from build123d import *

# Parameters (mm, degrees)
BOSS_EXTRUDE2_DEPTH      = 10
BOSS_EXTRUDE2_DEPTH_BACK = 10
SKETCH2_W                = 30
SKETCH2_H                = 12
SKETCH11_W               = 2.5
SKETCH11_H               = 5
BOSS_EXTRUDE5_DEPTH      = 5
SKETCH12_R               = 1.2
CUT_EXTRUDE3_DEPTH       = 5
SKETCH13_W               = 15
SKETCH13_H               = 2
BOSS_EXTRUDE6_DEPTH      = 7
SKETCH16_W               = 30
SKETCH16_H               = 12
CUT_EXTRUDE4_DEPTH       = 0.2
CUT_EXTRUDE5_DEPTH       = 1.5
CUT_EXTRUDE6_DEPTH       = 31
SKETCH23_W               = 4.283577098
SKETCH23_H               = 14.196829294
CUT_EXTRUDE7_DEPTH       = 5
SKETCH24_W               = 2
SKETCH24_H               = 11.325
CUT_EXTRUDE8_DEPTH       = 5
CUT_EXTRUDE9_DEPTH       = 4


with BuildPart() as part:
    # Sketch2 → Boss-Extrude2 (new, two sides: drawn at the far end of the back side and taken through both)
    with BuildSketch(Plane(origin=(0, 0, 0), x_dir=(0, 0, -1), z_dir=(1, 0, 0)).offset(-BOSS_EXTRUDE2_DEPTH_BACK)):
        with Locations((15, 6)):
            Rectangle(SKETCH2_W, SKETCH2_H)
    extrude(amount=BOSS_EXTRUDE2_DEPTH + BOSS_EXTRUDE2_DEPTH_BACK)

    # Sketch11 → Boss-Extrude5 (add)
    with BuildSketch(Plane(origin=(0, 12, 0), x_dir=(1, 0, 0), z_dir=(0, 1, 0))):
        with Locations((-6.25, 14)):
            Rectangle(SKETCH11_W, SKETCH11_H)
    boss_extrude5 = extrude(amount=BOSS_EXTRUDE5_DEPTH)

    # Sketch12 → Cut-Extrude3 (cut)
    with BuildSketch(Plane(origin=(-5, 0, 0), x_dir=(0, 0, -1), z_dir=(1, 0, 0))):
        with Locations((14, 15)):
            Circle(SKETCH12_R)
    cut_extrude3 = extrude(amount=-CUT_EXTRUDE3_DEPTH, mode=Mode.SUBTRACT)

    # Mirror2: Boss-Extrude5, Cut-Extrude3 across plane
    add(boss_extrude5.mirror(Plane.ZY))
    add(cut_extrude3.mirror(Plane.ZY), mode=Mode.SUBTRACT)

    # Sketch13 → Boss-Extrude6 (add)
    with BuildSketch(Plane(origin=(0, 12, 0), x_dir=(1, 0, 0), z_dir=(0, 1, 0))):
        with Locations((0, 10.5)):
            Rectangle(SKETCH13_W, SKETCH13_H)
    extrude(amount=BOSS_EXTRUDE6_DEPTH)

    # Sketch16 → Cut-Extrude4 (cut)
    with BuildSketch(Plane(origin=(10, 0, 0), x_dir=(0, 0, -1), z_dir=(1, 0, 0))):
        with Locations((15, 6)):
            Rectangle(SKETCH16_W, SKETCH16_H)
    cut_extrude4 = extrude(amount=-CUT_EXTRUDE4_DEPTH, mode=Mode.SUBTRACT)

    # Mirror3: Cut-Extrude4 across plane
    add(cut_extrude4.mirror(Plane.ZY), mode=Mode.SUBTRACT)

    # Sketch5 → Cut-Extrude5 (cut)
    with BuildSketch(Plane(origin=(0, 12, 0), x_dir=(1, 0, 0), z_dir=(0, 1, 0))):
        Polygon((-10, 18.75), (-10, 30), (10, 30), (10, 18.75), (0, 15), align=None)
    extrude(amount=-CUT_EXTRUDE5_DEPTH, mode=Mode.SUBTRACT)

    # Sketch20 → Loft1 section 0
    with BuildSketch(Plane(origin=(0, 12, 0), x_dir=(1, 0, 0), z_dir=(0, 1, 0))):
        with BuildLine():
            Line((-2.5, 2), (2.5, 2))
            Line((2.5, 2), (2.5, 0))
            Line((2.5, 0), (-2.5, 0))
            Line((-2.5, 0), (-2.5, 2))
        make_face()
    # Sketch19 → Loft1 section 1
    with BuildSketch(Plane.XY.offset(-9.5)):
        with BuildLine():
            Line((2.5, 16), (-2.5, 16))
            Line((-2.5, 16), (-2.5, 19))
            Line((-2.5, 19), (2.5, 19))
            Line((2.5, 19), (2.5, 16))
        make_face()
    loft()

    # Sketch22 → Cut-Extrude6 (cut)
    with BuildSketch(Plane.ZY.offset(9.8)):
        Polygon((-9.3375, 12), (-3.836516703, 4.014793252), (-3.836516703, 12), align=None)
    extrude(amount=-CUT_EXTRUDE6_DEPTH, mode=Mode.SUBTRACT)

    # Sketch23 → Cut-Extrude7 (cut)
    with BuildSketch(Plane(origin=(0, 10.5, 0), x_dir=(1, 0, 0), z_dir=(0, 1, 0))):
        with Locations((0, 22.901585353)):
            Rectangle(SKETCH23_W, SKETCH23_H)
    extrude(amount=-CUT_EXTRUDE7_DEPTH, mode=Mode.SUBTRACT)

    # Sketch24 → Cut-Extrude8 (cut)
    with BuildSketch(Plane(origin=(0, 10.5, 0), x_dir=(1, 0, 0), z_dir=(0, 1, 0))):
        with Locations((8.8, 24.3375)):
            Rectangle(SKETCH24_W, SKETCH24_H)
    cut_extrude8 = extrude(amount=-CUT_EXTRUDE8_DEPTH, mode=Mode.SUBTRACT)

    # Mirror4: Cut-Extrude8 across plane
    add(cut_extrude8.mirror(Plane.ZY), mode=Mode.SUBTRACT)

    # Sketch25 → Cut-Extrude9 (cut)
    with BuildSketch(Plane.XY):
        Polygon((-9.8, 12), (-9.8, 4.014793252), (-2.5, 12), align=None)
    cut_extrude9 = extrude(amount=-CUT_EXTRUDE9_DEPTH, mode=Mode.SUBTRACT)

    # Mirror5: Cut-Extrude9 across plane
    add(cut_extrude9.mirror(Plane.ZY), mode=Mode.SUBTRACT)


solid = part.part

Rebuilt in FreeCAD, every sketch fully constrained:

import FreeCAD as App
import Part
import Sketcher
Q = App.Units.Quantity

doc = App.newDocument("Part")
body = doc.addObject("PartDesign::Body", "Body")

# Sketch on YZ plane
sketch1 = body.newObject("Sketcher::SketchObject", "Sketch")
sketch1.AttachmentSupport = (doc.getObject("YZ_Plane"), [""])
sketch1.MapMode = "FlatFace"
sketch1.addGeometry(Part.LineSegment(App.Vector(12, 0, 0), App.Vector(0, 0, 0)), False)
sketch1.addGeometry(Part.LineSegment(App.Vector(0, 0, 0), App.Vector(0, -30, 0)), False)
sketch1.addGeometry(Part.LineSegment(App.Vector(0, -30, 0), App.Vector(12, -30, 0)), False)
sketch1.addGeometry(Part.LineSegment(App.Vector(12, -30, 0), App.Vector(12, 0, 0)), False)
sketch1.addConstraint(Sketcher.Constraint("Coincident", 0, 2, 1, 1))
sketch1.addConstraint(Sketcher.Constraint("Coincident", 1, 2, 2, 1))
sketch1.addConstraint(Sketcher.Constraint("Coincident", 2, 2, 3, 1))
sketch1.addConstraint(Sketcher.Constraint("Coincident", 3, 2, 0, 1))
sketch1.addConstraint(Sketcher.Constraint("Horizontal", 0))
sketch1.addConstraint(Sketcher.Constraint("Vertical", 1))
sketch1.addConstraint(Sketcher.Constraint("Horizontal", 2))
sketch1.addConstraint(Sketcher.Constraint("Vertical", 3))
sketch1.addConstraint(Sketcher.Constraint("Coincident", 0, 2, -1, 1))
sketch1.addConstraint(Sketcher.Constraint("DistanceX", 0, 2, 0, 1, Q("12 mm")))
sketch1.addConstraint(Sketcher.Constraint("DistanceY", 1, 2, 1, 1, Q("30 mm")))
pad1 = body.newObject("PartDesign::Pad", "Pad")
pad1.Profile = sketch1
pad1.Type = "TwoLengths"
pad1.Length = 10
pad1.Length2 = 10

# Sketch on XZ plane
sketch2 = body.newObject("Sketcher::SketchObject", "Sketch001")
sketch2.AttachmentSupport = (doc.getObject("XZ_Plane"), [""])
sketch2.MapMode = "FlatFace"
sketch2.AttachmentOffset = App.Placement(App.Vector(0, 0, -12), App.Rotation())
sketch2.addGeometry(Part.LineSegment(App.Vector(-7.5, -16.5, 0), App.Vector(-7.5, -11.5, 0)), False)
sketch2.addGeometry(Part.LineSegment(App.Vector(-7.5, -11.5, 0), App.Vector(-5, -11.5, 0)), False)
sketch2.addGeometry(Part.LineSegment(App.Vector(-5, -11.5, 0), App.Vector(-5, -16.5, 0)), False)
sketch2.addGeometry(Part.LineSegment(App.Vector(-5, -16.5, 0), App.Vector(-7.5, -16.5, 0)), False)
sketch2.addConstraint(Sketcher.Constraint("Coincident", 0, 2, 1, 1))
sketch2.addConstraint(Sketcher.Constraint("Coincident", 1, 2, 2, 1))
sketch2.addConstraint(Sketcher.Constraint("Coincident", 2, 2, 3, 1))
sketch2.addConstraint(Sketcher.Constraint("Coincident", 3, 2, 0, 1))
sketch2.addConstraint(Sketcher.Constraint("Vertical", 0))
sketch2.addConstraint(Sketcher.Constraint("Horizontal", 1))
sketch2.addConstraint(Sketcher.Constraint("Vertical", 2))
sketch2.addConstraint(Sketcher.Constraint("Horizontal", 3))
sketch2.addConstraint(Sketcher.Constraint("DistanceY", 0, 1, 0, 2, Q("5 mm")))
sketch2.addConstraint(Sketcher.Constraint("DistanceX", 1, 1, 1, 2, Q("2.5 mm")))
sketch2.addConstraint(Sketcher.Constraint("DistanceX", 1, 2, -1, 1, Q("5 mm")))
sketch2.addConstraint(Sketcher.Constraint("DistanceY", 0, 2, -1, 1, Q("11.5 mm")))
pad2 = body.newObject("PartDesign::Pad", "Pad001")
pad2.Profile = sketch2
pad2.Length = 5
pad2.Reversed = True

# Sketch on YZ plane
sketch3 = body.newObject("Sketcher::SketchObject", "Sketch002")
sketch3.AttachmentSupport = (doc.getObject("YZ_Plane"), [""])
sketch3.MapMode = "FlatFace"
sketch3.AttachmentOffset = App.Placement(App.Vector(0, 0, -5), App.Rotation())
sketch3.addGeometry(Part.Circle(App.Vector(15, -14, 0), App.Vector(0, 0, 1), 1.2), False)
sketch3.addConstraint(Sketcher.Constraint("Diameter", 0, Q("2.4 mm")))
sketch3.addConstraint(Sketcher.Constraint("DistanceX", -1, 1, 0, 3, Q("15 mm")))
sketch3.addConstraint(Sketcher.Constraint("DistanceY", 0, 3, -1, 1, Q("14 mm")))
pocket1 = body.newObject("PartDesign::Pocket", "Pocket")
pocket1.Profile = sketch3
pocket1.Length = 5
doc.recompute()

mirrored = body.newObject("PartDesign::Mirrored", "Mirrored")
mirrored.Originals = [pad2, pocket1]
mirrored.MirrorPlane = (doc.getObject("YZ_Plane"), [""])
body.Tip = mirrored

# Sketch on XZ plane
sketch4 = body.newObject("Sketcher::SketchObject", "Sketch003")
sketch4.AttachmentSupport = (doc.getObject("XZ_Plane"), [""])
sketch4.MapMode = "FlatFace"
sketch4.AttachmentOffset = App.Placement(App.Vector(0, 0, -12), App.Rotation())
sketch4.addGeometry(Part.LineSegment(App.Vector(-7.5, -11.5, 0), App.Vector(-7.5, -9.5, 0)), False)
sketch4.addGeometry(Part.LineSegment(App.Vector(-7.5, -9.5, 0), App.Vector(7.5, -9.5, 0)), False)
sketch4.addGeometry(Part.LineSegment(App.Vector(7.5, -9.5, 0), App.Vector(7.5, -11.5, 0)), False)
sketch4.addGeometry(Part.LineSegment(App.Vector(7.5, -11.5, 0), App.Vector(-7.5, -11.5, 0)), False)
sketch4.addConstraint(Sketcher.Constraint("Coincident", 0, 2, 1, 1))
sketch4.addConstraint(Sketcher.Constraint("Coincident", 1, 2, 2, 1))
sketch4.addConstraint(Sketcher.Constraint("Coincident", 2, 2, 3, 1))
sketch4.addConstraint(Sketcher.Constraint("Coincident", 3, 2, 0, 1))
sketch4.addConstraint(Sketcher.Constraint("Vertical", 0))
sketch4.addConstraint(Sketcher.Constraint("Horizontal", 1))
sketch4.addConstraint(Sketcher.Constraint("Vertical", 2))
sketch4.addConstraint(Sketcher.Constraint("Horizontal", 3))
sketch4.addConstraint(Sketcher.Constraint("DistanceX", 1, 1, 1, 2, Q("15 mm")))
sketch4.addConstraint(Sketcher.Constraint("DistanceY", 0, 1, 0, 2, Q("2 mm")))
sketch4.addConstraint(Sketcher.Constraint("DistanceX", 0, 2, -1, 1, Q("7.5 mm")))
sketch4.addConstraint(Sketcher.Constraint("DistanceY", 0, 2, -1, 1, Q("9.5 mm")))
pad3 = body.newObject("PartDesign::Pad", "Pad002")
pad3.Profile = sketch4
pad3.Length = 7
pad3.Reversed = True

# Sketch on YZ plane
sketch5 = body.newObject("Sketcher::SketchObject", "Sketch004")
sketch5.AttachmentSupport = (doc.getObject("YZ_Plane"), [""])
sketch5.MapMode = "FlatFace"
sketch5.AttachmentOffset = App.Placement(App.Vector(0, 0, 10), App.Rotation())
sketch5.addGeometry(Part.LineSegment(App.Vector(12, 0, 0), App.Vector(0, 0, 0)), False)
sketch5.addGeometry(Part.LineSegment(App.Vector(0, 0, 0), App.Vector(0, -30, 0)), False)
sketch5.addGeometry(Part.LineSegment(App.Vector(0, -30, 0), App.Vector(12, -30, 0)), False)
sketch5.addGeometry(Part.LineSegment(App.Vector(12, -30, 0), App.Vector(12, 0, 0)), False)
sketch5.addConstraint(Sketcher.Constraint("Coincident", 0, 2, 1, 1))
sketch5.addConstraint(Sketcher.Constraint("Coincident", 1, 2, 2, 1))
sketch5.addConstraint(Sketcher.Constraint("Coincident", 2, 2, 3, 1))
sketch5.addConstraint(Sketcher.Constraint("Coincident", 3, 2, 0, 1))
sketch5.addConstraint(Sketcher.Constraint("Horizontal", 0))
sketch5.addConstraint(Sketcher.Constraint("Vertical", 1))
sketch5.addConstraint(Sketcher.Constraint("Horizontal", 2))
sketch5.addConstraint(Sketcher.Constraint("Vertical", 3))
sketch5.addConstraint(Sketcher.Constraint("Coincident", 0, 2, -1, 1))
sketch5.addConstraint(Sketcher.Constraint("DistanceX", 0, 2, 0, 1, Q("12 mm")))
sketch5.addConstraint(Sketcher.Constraint("DistanceY", 1, 2, 1, 1, Q("30 mm")))
pocket2 = body.newObject("PartDesign::Pocket", "Pocket001")
pocket2.Profile = sketch5
pocket2.Length = 0.2
doc.recompute()

mirrored2 = body.newObject("PartDesign::Mirrored", "Mirrored001")
mirrored2.Originals = [pocket2]
mirrored2.MirrorPlane = (doc.getObject("YZ_Plane"), [""])
body.Tip = mirrored2

# Sketch on XZ plane
sketch6 = body.newObject("Sketcher::SketchObject", "Sketch005")
sketch6.AttachmentSupport = (doc.getObject("XZ_Plane"), [""])
sketch6.MapMode = "FlatFace"
sketch6.AttachmentOffset = App.Placement(App.Vector(0, 0, -12), App.Rotation())
sketch6.addGeometry(Part.LineSegment(App.Vector(-10, -30, 0), App.Vector(-10, -18.75, 0)), False)
sketch6.addGeometry(Part.LineSegment(App.Vector(-10, -18.75, 0), App.Vector(0, -15, 0)), False)
sketch6.addGeometry(Part.LineSegment(App.Vector(0, -15, 0), App.Vector(10, -18.75, 0)), False)
sketch6.addGeometry(Part.LineSegment(App.Vector(10, -18.75, 0), App.Vector(10, -30, 0)), False)
sketch6.addGeometry(Part.LineSegment(App.Vector(10, -30, 0), App.Vector(-10, -30, 0)), False)
sketch6.addConstraint(Sketcher.Constraint("Coincident", 0, 2, 1, 1))
sketch6.addConstraint(Sketcher.Constraint("Coincident", 1, 2, 2, 1))
sketch6.addConstraint(Sketcher.Constraint("Coincident", 2, 2, 3, 1))
sketch6.addConstraint(Sketcher.Constraint("Coincident", 3, 2, 4, 1))
sketch6.addConstraint(Sketcher.Constraint("Coincident", 4, 2, 0, 1))
sketch6.addConstraint(Sketcher.Constraint("Vertical", 0))
sketch6.addConstraint(Sketcher.Constraint("Vertical", 3))
sketch6.addConstraint(Sketcher.Constraint("Horizontal", 4))
sketch6.addConstraint(Sketcher.Constraint("Symmetric", 0, 2, 2, 2, -2))
sketch6.addConstraint(Sketcher.Constraint("PointOnObject", 1, 2, -2))
sketch6.addConstraint(Sketcher.Constraint("DistanceX", 4, 2, 4, 1, Q("20 mm")))
sketch6.addConstraint(Sketcher.Constraint("DistanceY", 1, 2, -1, 1, Q("15 mm")))
sketch6.addConstraint(Sketcher.Constraint("DistanceY", 3, 2, -1, 1, Q("30 mm")))
sketch6.addConstraint(Sketcher.Constraint("DistanceY", 0, 1, 0, 2, Q("11.25 mm")))
pocket3 = body.newObject("PartDesign::Pocket", "Pocket002")
pocket3.Profile = sketch6
pocket3.Length = 1.5
pocket3.Reversed = True

# Sketch on XZ plane
sketch7 = body.newObject("Sketcher::SketchObject", "Sketch006")
sketch7.AttachmentSupport = (doc.getObject("XZ_Plane"), [""])
sketch7.MapMode = "FlatFace"
sketch7.AttachmentOffset = App.Placement(App.Vector(0, 0, -12), App.Rotation())
sketch7.addGeometry(Part.LineSegment(App.Vector(2.5, -2, 0), App.Vector(-2.5, -2, 0)), False)
sketch7.addGeometry(Part.LineSegment(App.Vector(-2.5, -2, 0), App.Vector(-2.5, 0, 0)), False)
sketch7.addGeometry(Part.LineSegment(App.Vector(-2.5, 0, 0), App.Vector(2.5, 0, 0)), False)
sketch7.addGeometry(Part.LineSegment(App.Vector(2.5, 0, 0), App.Vector(2.5, -2, 0)), False)
sketch7.addConstraint(Sketcher.Constraint("Coincident", 0, 2, 1, 1))
sketch7.addConstraint(Sketcher.Constraint("Coincident", 1, 2, 2, 1))
sketch7.addConstraint(Sketcher.Constraint("Coincident", 2, 2, 3, 1))
sketch7.addConstraint(Sketcher.Constraint("Coincident", 3, 2, 0, 1))
sketch7.addConstraint(Sketcher.Constraint("Horizontal", 0))
sketch7.addConstraint(Sketcher.Constraint("Vertical", 1))
sketch7.addConstraint(Sketcher.Constraint("Horizontal", 2))
sketch7.addConstraint(Sketcher.Constraint("Vertical", 3))
sketch7.addConstraint(Sketcher.Constraint("Symmetric", 1, 2, 2, 2, -1, 1))
sketch7.addConstraint(Sketcher.Constraint("DistanceX", 0, 2, 0, 1, Q("5 mm")))
sketch7.addConstraint(Sketcher.Constraint("DistanceY", 1, 1, 1, 2, Q("2 mm")))

# Sketch on XY plane
sketch8 = body.newObject("Sketcher::SketchObject", "Sketch007")
sketch8.AttachmentSupport = (doc.getObject("XY_Plane"), [""])
sketch8.MapMode = "FlatFace"
sketch8.AttachmentOffset = App.Placement(App.Vector(0, 0, -9.5), App.Rotation())
sketch8.addGeometry(Part.LineSegment(App.Vector(-2.5, 16, 0), App.Vector(2.5, 16, 0)), False)
sketch8.addGeometry(Part.LineSegment(App.Vector(2.5, 16, 0), App.Vector(2.5, 19, 0)), False)
sketch8.addGeometry(Part.LineSegment(App.Vector(2.5, 19, 0), App.Vector(-2.5, 19, 0)), False)
sketch8.addGeometry(Part.LineSegment(App.Vector(-2.5, 19, 0), App.Vector(-2.5, 16, 0)), False)
sketch8.addConstraint(Sketcher.Constraint("Coincident", 0, 2, 1, 1))
sketch8.addConstraint(Sketcher.Constraint("Coincident", 1, 2, 2, 1))
sketch8.addConstraint(Sketcher.Constraint("Coincident", 2, 2, 3, 1))
sketch8.addConstraint(Sketcher.Constraint("Coincident", 3, 2, 0, 1))
sketch8.addConstraint(Sketcher.Constraint("Horizontal", 0))
sketch8.addConstraint(Sketcher.Constraint("Vertical", 1))
sketch8.addConstraint(Sketcher.Constraint("Horizontal", 2))
sketch8.addConstraint(Sketcher.Constraint("Vertical", 3))
sketch8.addConstraint(Sketcher.Constraint("DistanceX", 0, 1, 0, 2, Q("5 mm")))
sketch8.addConstraint(Sketcher.Constraint("DistanceY", 1, 1, 1, 2, Q("3 mm")))
sketch8.addConstraint(Sketcher.Constraint("DistanceY", -1, 1, 0, 2, Q("16 mm")))
sketch8.addConstraint(Sketcher.Constraint("DistanceX", -1, 1, 0, 2, Q("2.5 mm")))

additiveloft = body.newObject("PartDesign::AdditiveLoft", "AdditiveLoft")
additiveloft.Profile = sketch7
additiveloft.Sections = [sketch8]

# Sketch on YZ plane
sketch9 = body.newObject("Sketcher::SketchObject", "Sketch008")
sketch9.AttachmentSupport = (doc.getObject("YZ_Plane"), [""])
sketch9.MapMode = "FlatFace"
sketch9.AttachmentOffset = App.Placement(App.Vector(0, 0, -9.8), App.Rotation())
sketch9.addGeometry(Part.LineSegment(App.Vector(12, -9.3375, 0), App.Vector(4.014793, -3.836517, 0)), False)
sketch9.addGeometry(Part.LineSegment(App.Vector(4.014793, -3.836517, 0), App.Vector(12, -3.836517, 0)), False)
sketch9.addGeometry(Part.LineSegment(App.Vector(12, -3.836517, 0), App.Vector(12, -9.3375, 0)), False)
sketch9.addConstraint(Sketcher.Constraint("Coincident", 0, 2, 1, 1))
sketch9.addConstraint(Sketcher.Constraint("Coincident", 1, 2, 2, 1))
sketch9.addConstraint(Sketcher.Constraint("Coincident", 2, 2, 0, 1))
sketch9.addConstraint(Sketcher.Constraint("Horizontal", 1))
sketch9.addConstraint(Sketcher.Constraint("Vertical", 2))
sketch9.addConstraint(Sketcher.Constraint("DistanceX", -1, 1, 1, 2, Q("12 mm")))
sketch9.addConstraint(Sketcher.Constraint("DistanceY", 2, 2, -1, 1, Q("9.3375 mm")))
sketch9.addConstraint(Sketcher.Constraint("DistanceX", 1, 1, 1, 2, Q("7.985207 mm")))
sketch9.addConstraint(Sketcher.Constraint("DistanceY", 2, 2, 2, 1, Q("5.500983 mm")))
pocket4 = body.newObject("PartDesign::Pocket", "Pocket003")
pocket4.Profile = sketch9
pocket4.Length = 31
pocket4.Reversed = True

# Sketch on XZ plane
sketch10 = body.newObject("Sketcher::SketchObject", "Sketch009")
sketch10.AttachmentSupport = (doc.getObject("XZ_Plane"), [""])
sketch10.MapMode = "FlatFace"
sketch10.AttachmentOffset = App.Placement(App.Vector(0, 0, -10.5), App.Rotation())
sketch10.addGeometry(Part.LineSegment(App.Vector(-2.141789, -30, 0), App.Vector(-2.141789, -15.803171, 0)), False)
sketch10.addGeometry(Part.LineSegment(App.Vector(-2.141789, -15.803171, 0), App.Vector(2.141789, -15.803171, 0)), False)
sketch10.addGeometry(Part.LineSegment(App.Vector(2.141789, -15.803171, 0), App.Vector(2.141789, -30, 0)), False)
sketch10.addGeometry(Part.LineSegment(App.Vector(2.141789, -30, 0), App.Vector(-2.141789, -30, 0)), False)
sketch10.addConstraint(Sketcher.Constraint("Coincident", 0, 2, 1, 1))
sketch10.addConstraint(Sketcher.Constraint("Coincident", 1, 2, 2, 1))
sketch10.addConstraint(Sketcher.Constraint("Coincident", 2, 2, 3, 1))
sketch10.addConstraint(Sketcher.Constraint("Coincident", 3, 2, 0, 1))
sketch10.addConstraint(Sketcher.Constraint("Vertical", 0))
sketch10.addConstraint(Sketcher.Constraint("Horizontal", 1))
sketch10.addConstraint(Sketcher.Constraint("Vertical", 2))
sketch10.addConstraint(Sketcher.Constraint("Horizontal", 3))
sketch10.addConstraint(Sketcher.Constraint("DistanceY", 2, 2, -1, 1, Q("30 mm")))
sketch10.addConstraint(Sketcher.Constraint("DistanceY", 0, 1, 0, 2, Q("14.196829 mm")))
sketch10.addConstraint(Sketcher.Constraint("DistanceX", 1, 1, 1, 2, Q("4.283577 mm")))
sketch10.addConstraint(Sketcher.Constraint("DistanceX", 0, 2, -1, 1, Q("2.141789 mm")))
pocket5 = body.newObject("PartDesign::Pocket", "Pocket004")
pocket5.Profile = sketch10
pocket5.Length = 5
pocket5.Reversed = True

# Sketch on XZ plane
sketch11 = body.newObject("Sketcher::SketchObject", "Sketch010")
sketch11.AttachmentSupport = (doc.getObject("XZ_Plane"), [""])
sketch11.MapMode = "FlatFace"
sketch11.AttachmentOffset = App.Placement(App.Vector(0, 0, -10.5), App.Rotation())
sketch11.addGeometry(Part.LineSegment(App.Vector(7.8, -30, 0), App.Vector(7.8, -18.675, 0)), False)
sketch11.addGeometry(Part.LineSegment(App.Vector(7.8, -18.675, 0), App.Vector(9.8, -18.675, 0)), False)
sketch11.addGeometry(Part.LineSegment(App.Vector(9.8, -18.675, 0), App.Vector(9.8, -30, 0)), False)
sketch11.addGeometry(Part.LineSegment(App.Vector(9.8, -30, 0), App.Vector(7.8, -30, 0)), False)
sketch11.addConstraint(Sketcher.Constraint("Coincident", 0, 2, 1, 1))
sketch11.addConstraint(Sketcher.Constraint("Coincident", 1, 2, 2, 1))
sketch11.addConstraint(Sketcher.Constraint("Coincident", 2, 2, 3, 1))
sketch11.addConstraint(Sketcher.Constraint("Coincident", 3, 2, 0, 1))
sketch11.addConstraint(Sketcher.Constraint("Vertical", 0))
sketch11.addConstraint(Sketcher.Constraint("Horizontal", 1))
sketch11.addConstraint(Sketcher.Constraint("Vertical", 2))
sketch11.addConstraint(Sketcher.Constraint("Horizontal", 3))
sketch11.addConstraint(Sketcher.Constraint("DistanceX", 1, 1, 1, 2, Q("2 mm")))
sketch11.addConstraint(Sketcher.Constraint("DistanceY", 2, 2, -1, 1, Q("30 mm")))
sketch11.addConstraint(Sketcher.Constraint("DistanceX", -1, 1, 0, 2, Q("7.8 mm")))
sketch11.addConstraint(Sketcher.Constraint("DistanceY", 0, 1, 0, 2, Q("11.325 mm")))
pocket6 = body.newObject("PartDesign::Pocket", "Pocket005")
pocket6.Profile = sketch11
pocket6.Length = 5
pocket6.Reversed = True
doc.recompute()

mirrored3 = body.newObject("PartDesign::Mirrored", "Mirrored002")
mirrored3.Originals = [pocket6]
mirrored3.MirrorPlane = (doc.getObject("YZ_Plane"), [""])
body.Tip = mirrored3

# Sketch on XY plane
sketch12 = body.newObject("Sketcher::SketchObject", "Sketch011")
sketch12.AttachmentSupport = (doc.getObject("XY_Plane"), [""])
sketch12.MapMode = "FlatFace"
sketch12.addGeometry(Part.LineSegment(App.Vector(-9.8, 12, 0), App.Vector(-9.8, 4.014793, 0)), False)
sketch12.addGeometry(Part.LineSegment(App.Vector(-9.8, 4.014793, 0), App.Vector(-2.5, 12, 0)), False)
sketch12.addGeometry(Part.LineSegment(App.Vector(-2.5, 12, 0), App.Vector(-9.8, 12, 0)), False)
sketch12.addConstraint(Sketcher.Constraint("Coincident", 0, 2, 1, 1))
sketch12.addConstraint(Sketcher.Constraint("Coincident", 1, 2, 2, 1))
sketch12.addConstraint(Sketcher.Constraint("Coincident", 2, 2, 0, 1))
sketch12.addConstraint(Sketcher.Constraint("Vertical", 0))
sketch12.addConstraint(Sketcher.Constraint("Horizontal", 2))
sketch12.addConstraint(Sketcher.Constraint("DistanceX", 2, 2, 2, 1, Q("7.3 mm")))
sketch12.addConstraint(Sketcher.Constraint("DistanceY", -1, 1, 1, 2, Q("12 mm")))
sketch12.addConstraint(Sketcher.Constraint("DistanceX", 0, 2, -1, 1, Q("9.8 mm")))
sketch12.addConstraint(Sketcher.Constraint("DistanceY", 0, 2, 0, 1, Q("7.985207 mm")))
pocket7 = body.newObject("PartDesign::Pocket", "Pocket006")
pocket7.Profile = sketch12
pocket7.Length = 4
doc.recompute()

mirrored4 = body.newObject("PartDesign::Mirrored", "Mirrored003")
mirrored4.Originals = [pocket7]
mirrored4.MirrorPlane = (doc.getObject("YZ_Plane"), [""])
body.Tip = mirrored4

doc.recompute()
